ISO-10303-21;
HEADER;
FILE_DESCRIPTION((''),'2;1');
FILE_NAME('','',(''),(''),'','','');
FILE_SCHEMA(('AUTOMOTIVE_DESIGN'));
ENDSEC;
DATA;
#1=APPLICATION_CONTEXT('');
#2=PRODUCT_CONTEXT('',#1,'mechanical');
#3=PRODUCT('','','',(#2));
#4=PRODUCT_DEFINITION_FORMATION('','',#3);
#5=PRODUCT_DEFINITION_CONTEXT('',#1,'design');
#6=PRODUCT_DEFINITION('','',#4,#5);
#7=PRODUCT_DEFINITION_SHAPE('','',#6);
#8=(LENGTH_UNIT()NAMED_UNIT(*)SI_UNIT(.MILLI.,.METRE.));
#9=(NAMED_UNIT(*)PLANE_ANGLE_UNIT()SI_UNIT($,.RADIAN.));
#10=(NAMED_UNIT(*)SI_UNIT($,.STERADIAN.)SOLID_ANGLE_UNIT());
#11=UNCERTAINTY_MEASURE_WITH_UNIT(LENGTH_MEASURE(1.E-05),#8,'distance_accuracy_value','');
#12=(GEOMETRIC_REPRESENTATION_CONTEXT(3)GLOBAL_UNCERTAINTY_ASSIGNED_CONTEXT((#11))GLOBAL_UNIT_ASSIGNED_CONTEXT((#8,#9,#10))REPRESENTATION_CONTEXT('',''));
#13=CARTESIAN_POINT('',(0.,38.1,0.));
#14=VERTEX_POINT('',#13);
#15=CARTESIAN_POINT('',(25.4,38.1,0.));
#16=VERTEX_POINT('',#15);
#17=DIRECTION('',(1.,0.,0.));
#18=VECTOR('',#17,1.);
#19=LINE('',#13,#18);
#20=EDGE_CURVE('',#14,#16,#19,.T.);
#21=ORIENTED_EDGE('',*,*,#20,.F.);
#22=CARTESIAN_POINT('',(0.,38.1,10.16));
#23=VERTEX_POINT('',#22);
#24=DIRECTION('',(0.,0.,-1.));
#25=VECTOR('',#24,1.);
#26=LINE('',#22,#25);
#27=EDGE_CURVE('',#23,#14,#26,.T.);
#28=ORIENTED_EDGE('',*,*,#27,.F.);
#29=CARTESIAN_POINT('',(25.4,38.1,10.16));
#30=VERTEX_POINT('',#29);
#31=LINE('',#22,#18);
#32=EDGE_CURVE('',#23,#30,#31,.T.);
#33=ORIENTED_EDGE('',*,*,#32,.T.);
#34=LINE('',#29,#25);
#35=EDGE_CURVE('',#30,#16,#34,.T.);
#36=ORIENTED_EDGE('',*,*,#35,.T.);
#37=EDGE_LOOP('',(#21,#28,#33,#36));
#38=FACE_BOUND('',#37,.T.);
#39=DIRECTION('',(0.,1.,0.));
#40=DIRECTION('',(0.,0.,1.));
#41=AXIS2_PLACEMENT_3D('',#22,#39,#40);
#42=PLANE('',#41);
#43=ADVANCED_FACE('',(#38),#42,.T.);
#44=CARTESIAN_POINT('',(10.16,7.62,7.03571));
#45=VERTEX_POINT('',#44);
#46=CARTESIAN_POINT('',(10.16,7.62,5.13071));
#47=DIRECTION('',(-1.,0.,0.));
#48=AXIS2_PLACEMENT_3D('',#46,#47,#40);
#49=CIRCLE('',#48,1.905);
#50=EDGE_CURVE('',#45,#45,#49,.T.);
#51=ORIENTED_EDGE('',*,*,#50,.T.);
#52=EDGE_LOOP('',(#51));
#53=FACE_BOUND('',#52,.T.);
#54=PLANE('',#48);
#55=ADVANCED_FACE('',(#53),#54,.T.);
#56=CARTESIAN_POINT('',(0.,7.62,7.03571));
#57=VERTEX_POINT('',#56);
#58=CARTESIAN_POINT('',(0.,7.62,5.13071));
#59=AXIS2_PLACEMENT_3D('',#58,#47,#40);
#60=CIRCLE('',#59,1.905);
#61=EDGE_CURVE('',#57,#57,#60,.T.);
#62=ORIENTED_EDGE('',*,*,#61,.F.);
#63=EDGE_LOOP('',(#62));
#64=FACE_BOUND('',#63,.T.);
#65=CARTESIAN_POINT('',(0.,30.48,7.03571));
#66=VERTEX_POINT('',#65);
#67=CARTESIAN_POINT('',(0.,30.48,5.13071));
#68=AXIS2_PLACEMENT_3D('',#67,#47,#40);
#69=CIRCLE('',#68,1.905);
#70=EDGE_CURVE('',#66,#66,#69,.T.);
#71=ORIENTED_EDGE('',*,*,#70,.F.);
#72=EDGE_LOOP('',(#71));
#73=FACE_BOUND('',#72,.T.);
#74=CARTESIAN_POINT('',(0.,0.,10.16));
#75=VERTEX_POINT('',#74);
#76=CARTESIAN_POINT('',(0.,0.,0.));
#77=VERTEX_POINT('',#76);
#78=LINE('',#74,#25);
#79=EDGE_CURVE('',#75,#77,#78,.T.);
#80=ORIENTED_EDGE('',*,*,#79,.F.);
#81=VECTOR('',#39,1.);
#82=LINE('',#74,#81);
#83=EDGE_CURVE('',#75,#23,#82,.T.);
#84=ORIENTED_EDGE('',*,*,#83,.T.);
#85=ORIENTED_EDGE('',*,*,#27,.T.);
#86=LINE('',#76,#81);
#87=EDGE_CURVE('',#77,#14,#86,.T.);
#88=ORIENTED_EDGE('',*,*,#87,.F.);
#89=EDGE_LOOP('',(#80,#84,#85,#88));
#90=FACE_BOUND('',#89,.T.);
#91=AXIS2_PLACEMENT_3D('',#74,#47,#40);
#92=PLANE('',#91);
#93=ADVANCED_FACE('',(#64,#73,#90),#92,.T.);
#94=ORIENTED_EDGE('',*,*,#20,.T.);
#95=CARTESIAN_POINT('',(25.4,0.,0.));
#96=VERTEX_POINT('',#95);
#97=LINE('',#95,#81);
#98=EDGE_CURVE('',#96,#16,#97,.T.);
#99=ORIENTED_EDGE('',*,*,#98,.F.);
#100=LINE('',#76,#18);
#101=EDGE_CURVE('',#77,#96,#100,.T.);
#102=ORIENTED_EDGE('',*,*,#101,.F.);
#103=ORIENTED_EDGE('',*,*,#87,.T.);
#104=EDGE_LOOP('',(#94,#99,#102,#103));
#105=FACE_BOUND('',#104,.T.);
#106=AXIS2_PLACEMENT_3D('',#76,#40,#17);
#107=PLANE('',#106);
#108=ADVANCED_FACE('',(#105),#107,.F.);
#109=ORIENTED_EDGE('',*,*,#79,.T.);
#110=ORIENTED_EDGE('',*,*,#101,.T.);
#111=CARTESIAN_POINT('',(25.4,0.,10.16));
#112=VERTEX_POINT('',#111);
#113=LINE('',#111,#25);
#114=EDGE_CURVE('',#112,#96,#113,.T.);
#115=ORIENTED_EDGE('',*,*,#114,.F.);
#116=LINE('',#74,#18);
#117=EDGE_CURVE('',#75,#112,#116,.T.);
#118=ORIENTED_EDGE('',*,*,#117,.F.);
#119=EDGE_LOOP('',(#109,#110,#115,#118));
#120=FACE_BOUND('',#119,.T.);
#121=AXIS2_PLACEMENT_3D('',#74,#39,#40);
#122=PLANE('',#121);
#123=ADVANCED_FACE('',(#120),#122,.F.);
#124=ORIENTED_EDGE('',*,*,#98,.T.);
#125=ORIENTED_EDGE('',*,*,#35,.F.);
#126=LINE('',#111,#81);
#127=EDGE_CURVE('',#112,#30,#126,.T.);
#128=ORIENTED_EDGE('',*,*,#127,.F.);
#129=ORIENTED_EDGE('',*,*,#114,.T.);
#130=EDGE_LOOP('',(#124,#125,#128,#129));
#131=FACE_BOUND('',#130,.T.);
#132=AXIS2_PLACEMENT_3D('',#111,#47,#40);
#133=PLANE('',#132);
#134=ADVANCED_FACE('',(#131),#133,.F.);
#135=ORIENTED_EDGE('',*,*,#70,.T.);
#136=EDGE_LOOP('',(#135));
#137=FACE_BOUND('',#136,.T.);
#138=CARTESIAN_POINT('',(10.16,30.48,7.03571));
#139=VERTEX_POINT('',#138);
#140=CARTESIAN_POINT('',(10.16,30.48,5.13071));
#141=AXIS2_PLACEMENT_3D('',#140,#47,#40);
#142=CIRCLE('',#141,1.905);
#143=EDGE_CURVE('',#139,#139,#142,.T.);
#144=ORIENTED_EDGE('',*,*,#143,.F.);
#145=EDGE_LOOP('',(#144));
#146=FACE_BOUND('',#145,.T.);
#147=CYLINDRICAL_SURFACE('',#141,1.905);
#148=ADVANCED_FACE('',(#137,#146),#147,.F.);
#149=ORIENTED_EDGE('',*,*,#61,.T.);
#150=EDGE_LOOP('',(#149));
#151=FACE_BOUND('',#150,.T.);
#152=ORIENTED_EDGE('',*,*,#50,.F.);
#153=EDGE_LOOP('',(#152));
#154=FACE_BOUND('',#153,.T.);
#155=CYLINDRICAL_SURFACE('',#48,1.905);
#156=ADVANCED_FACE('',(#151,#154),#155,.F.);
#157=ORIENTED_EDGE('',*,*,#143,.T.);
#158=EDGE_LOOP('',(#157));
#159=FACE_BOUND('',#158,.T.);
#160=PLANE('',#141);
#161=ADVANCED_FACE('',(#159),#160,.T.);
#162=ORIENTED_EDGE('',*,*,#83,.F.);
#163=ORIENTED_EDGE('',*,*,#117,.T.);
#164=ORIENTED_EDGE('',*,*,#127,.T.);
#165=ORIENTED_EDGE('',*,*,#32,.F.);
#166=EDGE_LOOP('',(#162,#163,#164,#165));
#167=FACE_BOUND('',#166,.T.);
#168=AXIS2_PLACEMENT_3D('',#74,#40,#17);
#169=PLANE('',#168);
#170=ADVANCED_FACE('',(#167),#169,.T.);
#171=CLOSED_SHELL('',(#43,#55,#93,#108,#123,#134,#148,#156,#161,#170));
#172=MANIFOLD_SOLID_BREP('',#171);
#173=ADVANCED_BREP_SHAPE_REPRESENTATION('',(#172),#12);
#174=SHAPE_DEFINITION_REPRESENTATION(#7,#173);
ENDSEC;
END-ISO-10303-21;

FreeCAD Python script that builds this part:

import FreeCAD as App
import Part
import Sketcher

V = App.Vector
Q = App.Units.Quantity

doc = App.newDocument("Part")
params = doc.addObject("Spreadsheet::Sheet", "Params")
for row, (alias, value) in enumerate([
    ("sketch1_width", "1 in"),
    ("sketch1_height", "1.5 in"),
    ("pad1_length", "0.4 in"),
    ("sketch2_diameter", "0.15 in"),
    ("pocket1_length", "0.4 in"),
], start=1):
    params.set(f"A{row}", alias)
    params.set(f"B{row}", "=" + value)
    params.setAlias(f"B{row}", alias)

body = doc.addObject("PartDesign::Body", "Body")

# Sketch on XY plane
sketch1 = body.newObject("Sketcher::SketchObject", "Sketch")
sketch1.AttachmentSupport = (doc.getObject("XY_Plane"), [""])
sketch1.MapMode = "FlatFace"
sketch1.addGeometry(Part.LineSegment(V(0, 38, 0), V(0, 0, 0)), False)
sketch1.addGeometry(Part.LineSegment(V(0, 0, 0), V(25, 0, 0)), False)
sketch1.addGeometry(Part.LineSegment(V(25, 0, 0), V(25, 38, 0)), False)
sketch1.addGeometry(Part.LineSegment(V(25, 38, 0), V(0, 38, 0)), False)
sketch1.addConstraint(Sketcher.Constraint("Coincident", 0, 2, 1, 1))
sketch1.addConstraint(Sketcher.Constraint("Coincident", 1, 2, 2, 1))
sketch1.addConstraint(Sketcher.Constraint("Coincident", 2, 2, 3, 1))
sketch1.addConstraint(Sketcher.Constraint("Coincident", 3, 2, 0, 1))
sketch1.addConstraint(Sketcher.Constraint("Vertical", 0))
sketch1.addConstraint(Sketcher.Constraint("Horizontal", 1))
sketch1.addConstraint(Sketcher.Constraint("Vertical", 2))
sketch1.addConstraint(Sketcher.Constraint("Horizontal", 3))
sketch1.addConstraint(Sketcher.Constraint("Coincident", 0, 2, -1, 1))
sketch1.addConstraint(Sketcher.Constraint("DistanceX", 1, 1, 1, 2, Q("1 in")))
sketch1.addConstraint(Sketcher.Constraint("DistanceY", 0, 2, 0, 1, Q("1.5 in")))
sketch1.setExpression("Constraints[9]", "Params.sketch1_width")
sketch1.setExpression("Constraints[10]", "Params.sketch1_height")
pad1 = body.newObject("PartDesign::Pad", "Pad")
pad1.Profile = sketch1
pad1.setExpression("Length", "Params.pad1_length")

# Sketch on YZ plane
sketch2 = body.newObject("Sketcher::SketchObject", "Sketch001")
sketch2.AttachmentSupport = (doc.getObject("YZ_Plane"), [""])
sketch2.MapMode = "FlatFace"
sketch2.addGeometry(Part.Circle(V(30.5, 5.1, 0), V(0, 0, 1), 1.9), False)
sketch2.addGeometry(Part.Circle(V(7.6, 5.1, 0), V(0, 0, 1), 1.9), False)
sketch2.addConstraint(Sketcher.Constraint("Equal", 0, 1))
sketch2.addConstraint(Sketcher.Constraint("Horizontal", 0, 3, 1, 3))
sketch2.addConstraint(Sketcher.Constraint("Diameter", 0, Q("0.15 in")))
sketch2.addConstraint(Sketcher.Constraint("DistanceX", -1, 1, 0, 3, Q("1.2 in")))
sketch2.addConstraint(Sketcher.Constraint("DistanceX", -1, 1, 1, 3, Q("0.3 in")))
sketch2.addConstraint(Sketcher.Constraint("DistanceY", -1, 1, 0, 3, 5.13071))
sketch2.setExpression("Constraints[2]", "Params.sketch2_diameter")
pocket1 = body.newObject("PartDesign::Pocket", "Pocket")
pocket1.Profile = sketch2
pocket1.setExpression("Length", "Params.pocket1_length")
pocket1.Reversed = True

doc.recompute()
